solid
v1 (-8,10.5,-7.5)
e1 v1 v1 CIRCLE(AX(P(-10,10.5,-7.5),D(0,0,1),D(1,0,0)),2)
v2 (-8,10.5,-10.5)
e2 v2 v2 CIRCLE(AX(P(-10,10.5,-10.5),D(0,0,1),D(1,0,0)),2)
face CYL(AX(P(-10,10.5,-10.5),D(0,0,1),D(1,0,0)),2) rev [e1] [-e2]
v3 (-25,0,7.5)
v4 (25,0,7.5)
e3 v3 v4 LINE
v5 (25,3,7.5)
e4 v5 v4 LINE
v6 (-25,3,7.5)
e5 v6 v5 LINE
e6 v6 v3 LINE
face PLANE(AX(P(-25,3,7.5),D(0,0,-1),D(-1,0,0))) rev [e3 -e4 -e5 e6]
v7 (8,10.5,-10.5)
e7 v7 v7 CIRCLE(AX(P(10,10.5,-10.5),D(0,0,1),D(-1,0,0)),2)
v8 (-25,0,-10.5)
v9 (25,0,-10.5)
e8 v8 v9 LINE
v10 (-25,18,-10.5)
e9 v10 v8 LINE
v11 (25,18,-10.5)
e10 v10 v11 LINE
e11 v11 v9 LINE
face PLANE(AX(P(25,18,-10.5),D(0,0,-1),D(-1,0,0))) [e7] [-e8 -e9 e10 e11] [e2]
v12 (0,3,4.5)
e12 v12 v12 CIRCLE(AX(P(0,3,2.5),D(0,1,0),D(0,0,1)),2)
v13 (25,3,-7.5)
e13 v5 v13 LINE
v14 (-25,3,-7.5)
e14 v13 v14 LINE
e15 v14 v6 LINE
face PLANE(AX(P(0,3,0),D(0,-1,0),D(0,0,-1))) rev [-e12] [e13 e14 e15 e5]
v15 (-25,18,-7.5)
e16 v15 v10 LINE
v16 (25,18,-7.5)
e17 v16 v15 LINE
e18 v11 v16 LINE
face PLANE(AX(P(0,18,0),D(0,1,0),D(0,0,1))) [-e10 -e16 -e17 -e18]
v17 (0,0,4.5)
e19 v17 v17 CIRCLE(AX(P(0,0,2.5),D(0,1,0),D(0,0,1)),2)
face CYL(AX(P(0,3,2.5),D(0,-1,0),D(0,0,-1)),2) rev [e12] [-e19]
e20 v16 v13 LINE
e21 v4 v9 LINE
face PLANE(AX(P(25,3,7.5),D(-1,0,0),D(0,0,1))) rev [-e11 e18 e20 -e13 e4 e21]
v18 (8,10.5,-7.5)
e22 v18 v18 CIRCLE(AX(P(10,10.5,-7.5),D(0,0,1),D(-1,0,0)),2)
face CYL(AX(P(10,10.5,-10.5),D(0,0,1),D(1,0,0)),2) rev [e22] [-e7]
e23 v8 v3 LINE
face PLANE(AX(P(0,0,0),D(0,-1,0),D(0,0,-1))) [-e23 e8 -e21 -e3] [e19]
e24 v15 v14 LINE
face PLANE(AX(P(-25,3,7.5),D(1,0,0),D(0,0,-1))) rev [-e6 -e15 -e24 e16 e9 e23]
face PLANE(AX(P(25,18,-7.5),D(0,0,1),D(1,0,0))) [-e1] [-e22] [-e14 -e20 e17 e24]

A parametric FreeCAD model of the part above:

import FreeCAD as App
import Part
import Sketcher

V = App.Vector

doc = App.newDocument("Part")
body = doc.addObject("PartDesign::Body", "Body")

# Sketch on XZ plane
sketch1 = doc.addObject("Sketcher::SketchObject", "Sketch")
body.addObject(sketch1)
sketch1.AttachmentSupport = (doc.XZ_Plane, [""])
sketch1.MapMode = "FlatFace"
sketch1.addGeometry([
    Part.LineSegment(V(-25, -7.5, 0), V(-25, 7.5, 0)),  # 0
    Part.LineSegment(V(-25, 7.5, 0), V(25, 7.5, 0)),  # 1
    Part.LineSegment(V(25, 7.5, 0), V(25, -7.5, 0)),  # 2
    Part.LineSegment(V(25, -7.5, 0), V(-25, -7.5, 0)),  # 3
    Part.Circle(V(0, 2.5, 0), V(0, 0, 1), 2),  # 4
], False)
sketch1.addConstraint([
    Sketcher.Constraint("Coincident", 0, 2, 1, 1),
    Sketcher.Constraint("Coincident", 1, 2, 2, 1),
    Sketcher.Constraint("Coincident", 2, 2, 3, 1),
    Sketcher.Constraint("Coincident", 3, 2, 0, 1),
    Sketcher.Constraint("Vertical", 0),
    Sketcher.Constraint("Horizontal", 1),
    Sketcher.Constraint("Vertical", 2),
    Sketcher.Constraint("Horizontal", 3),
    Sketcher.Constraint("Symmetric", 0, 2, 2, 2, -1, 1),
    Sketcher.Constraint("PointOnObject", 4, 3, -2),
    Sketcher.Constraint("Diameter", 4, 4.0),
    Sketcher.Constraint("DistanceX", 1, 1, 1, 2, 50.0),
    Sketcher.Constraint("DistanceY", 0, 1, 0, 2, 15.0),
    Sketcher.Constraint("DistanceY", 4, 3, 0, 2, 5.0),
])
pad1 = doc.addObject("PartDesign::Pad", "Pad")
body.addObject(pad1)
pad1.Profile = sketch1
pad1.Length = 3
pad1.Reversed = True

# Sketch on XZ plane
sketch2 = doc.addObject("Sketcher::SketchObject", "Sketch001")
body.addObject(sketch2)
sketch2.AttachmentSupport = (doc.XZ_Plane, [""])
sketch2.MapMode = "FlatFace"
sketch2.addGeometry([
    Part.LineSegment(V(-25, -7.5, 0), V(-25, -10.5, 0)),
    Part.LineSegment(V(-25, -10.5, 0), V(25, -10.5, 0)),
    Part.LineSegment(V(25, -10.5, 0), V(25, -7.5, 0)),
    Part.LineSegment(V(25, -7.5, 0), V(-25, -7.5, 0)),
], False)
sketch2.addConstraint([
    Sketcher.Constraint("Coincident", 0, 2, 1, 1),
    Sketcher.Constraint("Coincident", 1, 2, 2, 1),
    Sketcher.Constraint("Coincident", 2, 2, 3, 1),
    Sketcher.Constraint("Coincident", 3, 2, 0, 1),
    Sketcher.Constraint("Vertical", 0),
    Sketcher.Constraint("Horizontal", 1),
    Sketcher.Constraint("Vertical", 2),
    Sketcher.Constraint("Horizontal", 3),
    Sketcher.Constraint("DistanceX", 1, 1, 1, 2, 50.0),
    Sketcher.Constraint("DistanceY", 0, 2, 0, 1, 3.0),
    Sketcher.Constraint("DistanceX", 0, 2, -1, 1, 25.0),
    Sketcher.Constraint("DistanceY", 0, 2, -1, 1, 10.5),
])
pad2 = doc.addObject("PartDesign::Pad", "Pad001")
body.addObject(pad2)
pad2.Profile = sketch2
pad2.Length = 18
pad2.Reversed = True

# Sketch on XY plane
sketch3 = doc.addObject("Sketcher::SketchObject", "Sketch002")
body.addObject(sketch3)
sketch3.AttachmentSupport = (doc.XY_Plane, [""])
sketch3.MapMode = "FlatFace"
sketch3.AttachmentOffset = App.Placement(V(0, 0, -7.5), App.Rotation())
sketch3.addGeometry([
    Part.Circle(V(-10, 10.5, 0), V(0, 0, 1), 2),
    Part.Circle(V(10, 10.5, 0), V(0, 0, 1), 2),
], False)
sketch3.addConstraint([
    Sketcher.Constraint("Equal", 0, 1),
    Sketcher.Constraint("Symmetric", 0, 3, 1, 3, -2),
    Sketcher.Constraint("Diameter", 0, 4.0),
    Sketcher.Constraint("DistanceX", 0, 3, -1, 1, 10.0),
    Sketcher.Constraint("DistanceY", -1, 1, 0, 3, 10.5),
])
pocket1 = doc.addObject("PartDesign::Pocket", "Pocket")
body.addObject(pocket1)
pocket1.Profile = sketch3
pocket1.Length = 3

doc.recompute()
